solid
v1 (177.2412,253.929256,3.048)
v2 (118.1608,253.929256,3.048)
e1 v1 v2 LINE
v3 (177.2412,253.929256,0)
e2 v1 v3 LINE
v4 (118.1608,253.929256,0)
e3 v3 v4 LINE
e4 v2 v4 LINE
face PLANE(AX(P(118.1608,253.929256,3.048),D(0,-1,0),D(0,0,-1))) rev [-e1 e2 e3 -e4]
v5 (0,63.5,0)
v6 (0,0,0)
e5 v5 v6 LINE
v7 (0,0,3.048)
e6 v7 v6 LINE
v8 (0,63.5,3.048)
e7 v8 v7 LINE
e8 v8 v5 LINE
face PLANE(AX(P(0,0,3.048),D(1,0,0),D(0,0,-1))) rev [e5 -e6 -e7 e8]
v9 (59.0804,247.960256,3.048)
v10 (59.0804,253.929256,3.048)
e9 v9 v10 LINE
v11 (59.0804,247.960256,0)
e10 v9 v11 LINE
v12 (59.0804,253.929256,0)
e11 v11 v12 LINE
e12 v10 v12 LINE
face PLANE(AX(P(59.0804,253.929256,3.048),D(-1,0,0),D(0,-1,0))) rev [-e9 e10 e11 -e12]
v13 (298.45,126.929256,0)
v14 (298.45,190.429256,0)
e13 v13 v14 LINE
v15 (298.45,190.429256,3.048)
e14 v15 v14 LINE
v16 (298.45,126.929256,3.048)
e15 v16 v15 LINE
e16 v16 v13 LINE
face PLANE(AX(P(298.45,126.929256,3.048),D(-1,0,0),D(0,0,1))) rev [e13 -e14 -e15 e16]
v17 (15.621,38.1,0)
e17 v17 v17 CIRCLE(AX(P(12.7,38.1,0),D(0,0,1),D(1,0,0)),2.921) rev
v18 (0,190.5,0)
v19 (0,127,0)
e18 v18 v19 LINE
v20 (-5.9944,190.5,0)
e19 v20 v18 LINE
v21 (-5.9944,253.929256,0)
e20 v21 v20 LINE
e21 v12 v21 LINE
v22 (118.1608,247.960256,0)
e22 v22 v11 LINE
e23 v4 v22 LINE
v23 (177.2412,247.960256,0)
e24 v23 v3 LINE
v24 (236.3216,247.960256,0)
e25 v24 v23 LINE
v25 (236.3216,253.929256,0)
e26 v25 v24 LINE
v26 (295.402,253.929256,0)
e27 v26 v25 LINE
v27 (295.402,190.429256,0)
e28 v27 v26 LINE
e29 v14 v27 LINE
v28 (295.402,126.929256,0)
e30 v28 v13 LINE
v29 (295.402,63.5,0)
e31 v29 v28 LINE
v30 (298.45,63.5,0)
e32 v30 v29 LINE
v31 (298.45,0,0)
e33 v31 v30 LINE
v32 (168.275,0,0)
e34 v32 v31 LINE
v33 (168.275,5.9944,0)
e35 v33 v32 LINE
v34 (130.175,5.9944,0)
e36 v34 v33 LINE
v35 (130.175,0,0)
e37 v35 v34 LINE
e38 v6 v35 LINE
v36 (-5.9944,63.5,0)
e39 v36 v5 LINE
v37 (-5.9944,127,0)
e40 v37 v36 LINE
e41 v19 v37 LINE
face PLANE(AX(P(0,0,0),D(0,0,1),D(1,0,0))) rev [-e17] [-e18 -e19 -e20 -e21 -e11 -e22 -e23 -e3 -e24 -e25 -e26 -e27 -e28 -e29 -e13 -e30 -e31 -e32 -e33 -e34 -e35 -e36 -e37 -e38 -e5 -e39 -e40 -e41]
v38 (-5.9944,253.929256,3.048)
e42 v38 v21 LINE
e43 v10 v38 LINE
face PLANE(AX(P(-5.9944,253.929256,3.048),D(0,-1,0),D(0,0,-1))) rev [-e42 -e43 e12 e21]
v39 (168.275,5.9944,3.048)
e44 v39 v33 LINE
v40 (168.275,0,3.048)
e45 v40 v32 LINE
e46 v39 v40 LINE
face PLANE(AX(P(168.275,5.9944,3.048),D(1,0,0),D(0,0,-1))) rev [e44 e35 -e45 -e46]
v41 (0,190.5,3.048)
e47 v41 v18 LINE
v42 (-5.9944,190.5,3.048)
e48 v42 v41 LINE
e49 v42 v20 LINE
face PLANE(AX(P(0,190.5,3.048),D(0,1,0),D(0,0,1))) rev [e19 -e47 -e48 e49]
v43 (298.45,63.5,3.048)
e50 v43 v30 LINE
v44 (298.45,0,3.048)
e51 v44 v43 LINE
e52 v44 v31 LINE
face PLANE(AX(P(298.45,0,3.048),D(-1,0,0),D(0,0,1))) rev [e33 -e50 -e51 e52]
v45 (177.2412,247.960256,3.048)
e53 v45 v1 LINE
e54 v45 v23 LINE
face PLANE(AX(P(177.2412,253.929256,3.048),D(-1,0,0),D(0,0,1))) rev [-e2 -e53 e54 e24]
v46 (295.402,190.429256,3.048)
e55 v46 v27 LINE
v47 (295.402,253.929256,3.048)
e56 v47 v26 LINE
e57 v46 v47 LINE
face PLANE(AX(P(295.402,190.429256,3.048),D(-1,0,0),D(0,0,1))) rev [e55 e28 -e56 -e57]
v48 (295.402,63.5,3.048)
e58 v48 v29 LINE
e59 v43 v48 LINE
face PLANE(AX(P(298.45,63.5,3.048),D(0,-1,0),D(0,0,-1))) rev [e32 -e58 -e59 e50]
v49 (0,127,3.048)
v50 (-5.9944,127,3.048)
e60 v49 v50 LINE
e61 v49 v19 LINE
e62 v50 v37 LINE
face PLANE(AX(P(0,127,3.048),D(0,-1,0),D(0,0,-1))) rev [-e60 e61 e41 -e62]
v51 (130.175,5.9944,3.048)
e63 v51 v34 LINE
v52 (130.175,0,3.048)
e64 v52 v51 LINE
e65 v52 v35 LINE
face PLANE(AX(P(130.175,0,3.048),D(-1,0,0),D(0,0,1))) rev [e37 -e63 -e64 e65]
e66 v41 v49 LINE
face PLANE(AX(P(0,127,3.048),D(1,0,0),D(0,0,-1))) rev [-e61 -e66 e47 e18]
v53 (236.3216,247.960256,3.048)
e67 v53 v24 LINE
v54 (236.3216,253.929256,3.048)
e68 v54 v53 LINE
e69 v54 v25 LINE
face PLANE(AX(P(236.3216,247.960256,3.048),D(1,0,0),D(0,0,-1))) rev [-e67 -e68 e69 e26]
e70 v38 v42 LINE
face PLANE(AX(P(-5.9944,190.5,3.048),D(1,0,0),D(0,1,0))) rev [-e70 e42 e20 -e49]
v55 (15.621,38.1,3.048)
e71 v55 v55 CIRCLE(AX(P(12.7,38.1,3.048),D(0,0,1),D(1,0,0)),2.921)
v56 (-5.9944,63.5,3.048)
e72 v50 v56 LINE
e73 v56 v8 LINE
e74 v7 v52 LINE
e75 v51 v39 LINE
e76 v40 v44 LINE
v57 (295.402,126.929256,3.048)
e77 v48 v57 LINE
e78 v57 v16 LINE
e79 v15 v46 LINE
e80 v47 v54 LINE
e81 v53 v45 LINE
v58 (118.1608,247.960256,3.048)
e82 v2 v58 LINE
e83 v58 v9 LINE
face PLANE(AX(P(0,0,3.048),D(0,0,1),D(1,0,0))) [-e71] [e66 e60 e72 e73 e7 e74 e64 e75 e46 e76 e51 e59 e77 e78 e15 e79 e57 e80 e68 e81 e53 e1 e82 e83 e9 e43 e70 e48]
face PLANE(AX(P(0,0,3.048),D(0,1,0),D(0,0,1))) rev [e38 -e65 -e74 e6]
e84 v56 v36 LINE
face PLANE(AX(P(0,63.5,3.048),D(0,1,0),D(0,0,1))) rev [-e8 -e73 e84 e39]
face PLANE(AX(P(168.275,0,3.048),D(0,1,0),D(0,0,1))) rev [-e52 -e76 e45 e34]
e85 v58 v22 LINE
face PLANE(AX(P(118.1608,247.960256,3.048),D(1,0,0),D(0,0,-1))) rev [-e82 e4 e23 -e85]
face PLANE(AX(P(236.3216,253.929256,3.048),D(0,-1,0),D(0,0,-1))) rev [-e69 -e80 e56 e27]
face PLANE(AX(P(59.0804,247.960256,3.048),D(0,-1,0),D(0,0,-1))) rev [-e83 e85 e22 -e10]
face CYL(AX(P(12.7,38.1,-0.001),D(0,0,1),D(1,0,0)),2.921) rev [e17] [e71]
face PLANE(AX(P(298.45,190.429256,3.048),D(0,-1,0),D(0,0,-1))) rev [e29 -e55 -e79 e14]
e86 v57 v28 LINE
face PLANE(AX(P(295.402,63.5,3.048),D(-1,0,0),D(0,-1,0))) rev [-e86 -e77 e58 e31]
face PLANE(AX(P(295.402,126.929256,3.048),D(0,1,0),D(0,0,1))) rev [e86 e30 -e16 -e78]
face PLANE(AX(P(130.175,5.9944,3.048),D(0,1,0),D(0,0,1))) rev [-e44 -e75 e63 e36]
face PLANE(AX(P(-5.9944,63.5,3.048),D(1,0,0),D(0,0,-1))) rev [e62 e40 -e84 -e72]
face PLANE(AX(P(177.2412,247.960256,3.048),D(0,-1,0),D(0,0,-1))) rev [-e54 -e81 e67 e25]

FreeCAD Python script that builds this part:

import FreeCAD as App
import Part
import Sketcher
from FreeCAD import Vector
Q = App.Units.Quantity

doc = App.newDocument("Part")
params = doc.addObject("Spreadsheet::Sheet", "Params")
for row, (alias, value) in enumerate([
    ("sketch1_width", "1.5 in"),
    ("sketch1_height", "2.5 in"),
    ("sketch1_width2", "0.12 in"),
    ("sketch1_width3", "5.125 in"),
    ("sketch1_width4", "2.326 in"),
    ("pad1_length", "0.12 in"),
    ("sketch2_diameter", "0.23 in"),
], start=1):
    params.set(f"A{row}", alias)
    params.set(f"B{row}", "=" + value)
    params.setAlias(f"B{row}", alias)

body = doc.addObject("PartDesign::Body", "Body")

sketch1 = body.newObject("Sketcher::SketchObject", "Sketch")
sketch1.AttachmentSupport = (doc.getObject("XY_Plane"), [""])
sketch1.MapMode = "FlatFace"
sketch1.addGeometry(Part.LineSegment(Vector(130.2, 0, 0), Vector(130.2, 6, 0)), False)
sketch1.addGeometry(Part.LineSegment(Vector(130.2, 6, 0), Vector(168.3, 6, 0)), False)
sketch1.addGeometry(Part.LineSegment(Vector(168.3, 6, 0), Vector(168.3, 0, 0)), False)
sketch1.addGeometry(Part.LineSegment(Vector(168.3, 0, 0), Vector(298.4, 0, 0)), False)
sketch1.addGeometry(Part.LineSegment(Vector(298.4, 0, 0), Vector(298.4, 63.5, 0)), False)
sketch1.addGeometry(Part.LineSegment(Vector(298.4, 63.5, 0), Vector(295.4, 63.5, 0)), False)
sketch1.addGeometry(Part.LineSegment(Vector(295.4, 63.5, 0), Vector(295.4, 126.9, 0)), False)
sketch1.addGeometry(Part.LineSegment(Vector(295.4, 126.9, 0), Vector(298.4, 126.9, 0)), False)
sketch1.addGeometry(Part.LineSegment(Vector(298.4, 126.9, 0), Vector(298.4, 190.4, 0)), False)
sketch1.addGeometry(Part.LineSegment(Vector(298.4, 190.4, 0), Vector(295.4, 190.4, 0)), False)
sketch1.addGeometry(Part.LineSegment(Vector(295.4, 190.4, 0), Vector(295.4, 253.9, 0)), False)
sketch1.addGeometry(Part.LineSegment(Vector(295.4, 253.9, 0), Vector(236.3, 253.9, 0)), False)
sketch1.addGeometry(Part.LineSegment(Vector(236.3, 253.9, 0), Vector(236.3, 248, 0)), False)
sketch1.addGeometry(Part.LineSegment(Vector(236.3, 248, 0), Vector(177.2, 248, 0)), False)
sketch1.addGeometry(Part.LineSegment(Vector(177.2, 248, 0), Vector(177.2, 253.9, 0)), False)
sketch1.addGeometry(Part.LineSegment(Vector(177.2, 253.9, 0), Vector(118.2, 253.9, 0)), False)
sketch1.addGeometry(Part.LineSegment(Vector(118.2, 253.9, 0), Vector(118.2, 248, 0)), False)
sketch1.addGeometry(Part.LineSegment(Vector(118.2, 248, 0), Vector(59.1, 248, 0)), False)
sketch1.addGeometry(Part.LineSegment(Vector(59.1, 248, 0), Vector(59.1, 253.9, 0)), False)
sketch1.addGeometry(Part.LineSegment(Vector(59.1, 253.9, 0), Vector(-6, 253.9, 0)), False)
sketch1.addGeometry(Part.LineSegment(Vector(-6, 253.9, 0), Vector(-6, 190.5, 0)), False)
sketch1.addGeometry(Part.LineSegment(Vector(-6, 190.5, 0), Vector(0, 190.5, 0)), False)
sketch1.addGeometry(Part.LineSegment(Vector(0, 190.5, 0), Vector(0, 127, 0)), False)
sketch1.addGeometry(Part.LineSegment(Vector(0, 127, 0), Vector(-6, 127, 0)), False)
sketch1.addGeometry(Part.LineSegment(Vector(-6, 127, 0), Vector(-6, 63.5, 0)), False)
sketch1.addGeometry(Part.LineSegment(Vector(-6, 63.5, 0), Vector(0, 63.5, 0)), False)
sketch1.addGeometry(Part.LineSegment(Vector(0, 63.5, 0), Vector(0, 0, 0)), False)
sketch1.addGeometry(Part.LineSegment(Vector(0, 0, 0), Vector(130.2, 0, 0)), False)
sketch1.addConstraint(Sketcher.Constraint("Coincident", 0, 2, 1, 1))
sketch1.addConstraint(Sketcher.Constraint("Coincident", 1, 2, 2, 1))
sketch1.addConstraint(Sketcher.Constraint("Coincident", 2, 2, 3, 1))
sketch1.addConstraint(Sketcher.Constraint("Coincident", 3, 2, 4, 1))
sketch1.addConstraint(Sketcher.Constraint("Coincident", 4, 2, 5, 1))
sketch1.addConstraint(Sketcher.Constraint("Coincident", 5, 2, 6, 1))
sketch1.addConstraint(Sketcher.Constraint("Coincident", 6, 2, 7, 1))
sketch1.addConstraint(Sketcher.Constraint("Coincident", 7, 2, 8, 1))
sketch1.addConstraint(Sketcher.Constraint("Coincident", 8, 2, 9, 1))
sketch1.addConstraint(Sketcher.Constraint("Coincident", 9, 2, 10, 1))
sketch1.addConstraint(Sketcher.Constraint("Coincident", 10, 2, 11, 1))
sketch1.addConstraint(Sketcher.Constraint("Coincident", 11, 2, 12, 1))
sketch1.addConstraint(Sketcher.Constraint("Coincident", 12, 2, 13, 1))
sketch1.addConstraint(Sketcher.Constraint("Coincident", 13, 2, 14, 1))
sketch1.addConstraint(Sketcher.Constraint("Coincident", 14, 2, 15, 1))
sketch1.addConstraint(Sketcher.Constraint("Coincident", 15, 2, 16, 1))
sketch1.addConstraint(Sketcher.Constraint("Coincident", 16, 2, 17, 1))
sketch1.addConstraint(Sketcher.Constraint("Coincident", 17, 2, 18, 1))
sketch1.addConstraint(Sketcher.Constraint("Coincident", 18, 2, 19, 1))
sketch1.addConstraint(Sketcher.Constraint("Coincident", 19, 2, 20, 1))
sketch1.addConstraint(Sketcher.Constraint("Coincident", 20, 2, 21, 1))
sketch1.addConstraint(Sketcher.Constraint("Coincident", 21, 2, 22, 1))
sketch1.addConstraint(Sketcher.Constraint("Coincident", 22, 2, 23, 1))
sketch1.addConstraint(Sketcher.Constraint("Coincident", 23, 2, 24, 1))
sketch1.addConstraint(Sketcher.Constraint("Coincident", 24, 2, 25, 1))
sketch1.addConstraint(Sketcher.Constraint("Coincident", 25, 2, 26, 1))
sketch1.addConstraint(Sketcher.Constraint("Coincident", 26, 2, 27, 1))
sketch1.addConstraint(Sketcher.Constraint("Coincident", 27, 2, 0, 1))
sketch1.addConstraint(Sketcher.Constraint("Vertical", 0))
sketch1.addConstraint(Sketcher.Constraint("Horizontal", 1))
sketch1.addConstraint(Sketcher.Constraint("Vertical", 2))
sketch1.addConstraint(Sketcher.Constraint("Horizontal", 3))
sketch1.addConstraint(Sketcher.Constraint("Vertical", 4))
sketch1.addConstraint(Sketcher.Constraint("Horizontal", 5))
sketch1.addConstraint(Sketcher.Constraint("Vertical", 6))
sketch1.addConstraint(Sketcher.Constraint("Horizontal", 7))
sketch1.addConstraint(Sketcher.Constraint("Vertical", 8))
sketch1.addConstraint(Sketcher.Constraint("Horizontal", 9))
sketch1.addConstraint(Sketcher.Constraint("Vertical", 10))
sketch1.addConstraint(Sketcher.Constraint("Horizontal", 11))
sketch1.addConstraint(Sketcher.Constraint("Vertical", 12))
sketch1.addConstraint(Sketcher.Constraint("Horizontal", 13))
sketch1.addConstraint(Sketcher.Constraint("Vertical", 14))
sketch1.addConstraint(Sketcher.Constraint("Horizontal", 15))
sketch1.addConstraint(Sketcher.Constraint("Vertical", 16))
sketch1.addConstraint(Sketcher.Constraint("Horizontal", 17))
sketch1.addConstraint(Sketcher.Constraint("Vertical", 18))
sketch1.addConstraint(Sketcher.Constraint("Horizontal", 19))
sketch1.addConstraint(Sketcher.Constraint("Vertical", 20))
sketch1.addConstraint(Sketcher.Constraint("Horizontal", 21))
sketch1.addConstraint(Sketcher.Constraint("Vertical", 22))
sketch1.addConstraint(Sketcher.Constraint("Horizontal", 23))
sketch1.addConstraint(Sketcher.Constraint("Vertical", 24))
sketch1.addConstraint(Sketcher.Constraint("Horizontal", 25))
sketch1.addConstraint(Sketcher.Constraint("Vertical", 26))
sketch1.addConstraint(Sketcher.Constraint("Horizontal", 27))
sketch1.addConstraint(Sketcher.Constraint("Coincident", 26, 2, -1, 1))
sketch1.addConstraint(Sketcher.Constraint("PointOnObject", 2, 2, -1))
sketch1.addConstraint(Sketcher.Constraint("PointOnObject", 21, 2, -2))
sketch1.addConstraint(Sketcher.Constraint("Horizontal", 11, 2, 14, 2))
sketch1.addConstraint(Sketcher.Constraint("Horizontal", 13, 2, 16, 2))
sketch1.addConstraint(Sketcher.Constraint("Horizontal", 15, 2, 18, 2))
sketch1.addConstraint(Sketcher.Constraint("Horizontal", 5, 2, 24, 2))
sketch1.addConstraint(Sketcher.Constraint("Vertical", 4, 2, 7, 2))
sketch1.addConstraint(Sketcher.Constraint("Vertical", 6, 2, 9, 2))
sketch1.addConstraint(Sketcher.Constraint("Vertical", 20, 2, 23, 2))
sketch1.addConstraint(Sketcher.Constraint("Equal", 11, 13))
sketch1.addConstraint(Sketcher.Constraint("Equal", 13, 15))
sketch1.addConstraint(Sketcher.Constraint("Equal", 15, 17))
sketch1.addConstraint(Sketcher.Constraint("Equal", 3, 27))
sketch1.addConstraint(Sketcher.Constraint("Equal", 25, 0))
sketch1.addConstraint(Sketcher.Constraint("Equal", 4, 8))
sketch1.addConstraint(Sketcher.Constraint("Equal", 8, 10))
sketch1.addConstraint(Sketcher.Constraint("Equal", 6, 20))
sketch1.addConstraint(Sketcher.Constraint("Equal", 10, 22))
sketch1.addConstraint(Sketcher.Constraint("DistanceX", 1, 1, 1, 2, Q("1.5 in")))
sketch1.addConstraint(Sketcher.Constraint("DistanceY", 4, 1, 4, 2, Q("2.5 in")))
sketch1.addConstraint(Sketcher.Constraint("DistanceX", 5, 2, 5, 1, Q("0.12 in")))
sketch1.addConstraint(Sketcher.Constraint("DistanceX", 3, 1, 3, 2, Q("5.125 in")))
sketch1.addConstraint(Sketcher.Constraint("DistanceX", 11, 2, 11, 1, Q("2.326 in")))
sketch1.addConstraint(Sketcher.Constraint("DistanceX", 19, 2, 19, 1, Q("2.562 in")))
sketch1.addConstraint(Sketcher.Constraint("DistanceY", 12, 2, 12, 1, Q("0.235 in")))
sketch1.addConstraint(Sketcher.Constraint("DistanceY", 6, 1, 6, 2, Q("63.429256 mm")))
sketch1.setExpression("Constraints[75]", "Params.sketch1_width")
sketch1.setExpression("Constraints[76]", "Params.sketch1_height")
sketch1.setExpression("Constraints[77]", "Params.sketch1_width2")
sketch1.setExpression("Constraints[78]", "Params.sketch1_width3")
sketch1.setExpression("Constraints[79]", "Params.sketch1_width4")
pad1 = body.newObject("PartDesign::Pad", "Pad")
pad1.Profile = sketch1
pad1.setExpression("Length", "Params.pad1_length")

sketch2 = body.newObject("Sketcher::SketchObject", "Sketch001")
sketch2.AttachmentSupport = (doc.getObject("XY_Plane"), [""])
sketch2.MapMode = "FlatFace"
sketch2.AttachmentOffset = App.Placement(Vector(0, 0, 0.12 * 25.4), App.Rotation())
sketch2.addGeometry(Part.Circle(Vector(12.7, 38.1, 0), Vector(0, 0, 1), 2.9), False)
sketch2.addConstraint(Sketcher.Constraint("Diameter", 0, Q("0.23 in")))
sketch2.addConstraint(Sketcher.Constraint("DistanceX", -1, 1, 0, 3, Q("0.5 in")))
sketch2.addConstraint(Sketcher.Constraint("DistanceY", -1, 1, 0, 3, Q("1.5 in")))
sketch2.setExpression("Constraints[0]", "Params.sketch2_diameter")
pocket1 = body.newObject("PartDesign::Pocket", "Pocket")
pocket1.Profile = sketch2
pocket1.Type = "UpToFirst"

doc.recompute()
